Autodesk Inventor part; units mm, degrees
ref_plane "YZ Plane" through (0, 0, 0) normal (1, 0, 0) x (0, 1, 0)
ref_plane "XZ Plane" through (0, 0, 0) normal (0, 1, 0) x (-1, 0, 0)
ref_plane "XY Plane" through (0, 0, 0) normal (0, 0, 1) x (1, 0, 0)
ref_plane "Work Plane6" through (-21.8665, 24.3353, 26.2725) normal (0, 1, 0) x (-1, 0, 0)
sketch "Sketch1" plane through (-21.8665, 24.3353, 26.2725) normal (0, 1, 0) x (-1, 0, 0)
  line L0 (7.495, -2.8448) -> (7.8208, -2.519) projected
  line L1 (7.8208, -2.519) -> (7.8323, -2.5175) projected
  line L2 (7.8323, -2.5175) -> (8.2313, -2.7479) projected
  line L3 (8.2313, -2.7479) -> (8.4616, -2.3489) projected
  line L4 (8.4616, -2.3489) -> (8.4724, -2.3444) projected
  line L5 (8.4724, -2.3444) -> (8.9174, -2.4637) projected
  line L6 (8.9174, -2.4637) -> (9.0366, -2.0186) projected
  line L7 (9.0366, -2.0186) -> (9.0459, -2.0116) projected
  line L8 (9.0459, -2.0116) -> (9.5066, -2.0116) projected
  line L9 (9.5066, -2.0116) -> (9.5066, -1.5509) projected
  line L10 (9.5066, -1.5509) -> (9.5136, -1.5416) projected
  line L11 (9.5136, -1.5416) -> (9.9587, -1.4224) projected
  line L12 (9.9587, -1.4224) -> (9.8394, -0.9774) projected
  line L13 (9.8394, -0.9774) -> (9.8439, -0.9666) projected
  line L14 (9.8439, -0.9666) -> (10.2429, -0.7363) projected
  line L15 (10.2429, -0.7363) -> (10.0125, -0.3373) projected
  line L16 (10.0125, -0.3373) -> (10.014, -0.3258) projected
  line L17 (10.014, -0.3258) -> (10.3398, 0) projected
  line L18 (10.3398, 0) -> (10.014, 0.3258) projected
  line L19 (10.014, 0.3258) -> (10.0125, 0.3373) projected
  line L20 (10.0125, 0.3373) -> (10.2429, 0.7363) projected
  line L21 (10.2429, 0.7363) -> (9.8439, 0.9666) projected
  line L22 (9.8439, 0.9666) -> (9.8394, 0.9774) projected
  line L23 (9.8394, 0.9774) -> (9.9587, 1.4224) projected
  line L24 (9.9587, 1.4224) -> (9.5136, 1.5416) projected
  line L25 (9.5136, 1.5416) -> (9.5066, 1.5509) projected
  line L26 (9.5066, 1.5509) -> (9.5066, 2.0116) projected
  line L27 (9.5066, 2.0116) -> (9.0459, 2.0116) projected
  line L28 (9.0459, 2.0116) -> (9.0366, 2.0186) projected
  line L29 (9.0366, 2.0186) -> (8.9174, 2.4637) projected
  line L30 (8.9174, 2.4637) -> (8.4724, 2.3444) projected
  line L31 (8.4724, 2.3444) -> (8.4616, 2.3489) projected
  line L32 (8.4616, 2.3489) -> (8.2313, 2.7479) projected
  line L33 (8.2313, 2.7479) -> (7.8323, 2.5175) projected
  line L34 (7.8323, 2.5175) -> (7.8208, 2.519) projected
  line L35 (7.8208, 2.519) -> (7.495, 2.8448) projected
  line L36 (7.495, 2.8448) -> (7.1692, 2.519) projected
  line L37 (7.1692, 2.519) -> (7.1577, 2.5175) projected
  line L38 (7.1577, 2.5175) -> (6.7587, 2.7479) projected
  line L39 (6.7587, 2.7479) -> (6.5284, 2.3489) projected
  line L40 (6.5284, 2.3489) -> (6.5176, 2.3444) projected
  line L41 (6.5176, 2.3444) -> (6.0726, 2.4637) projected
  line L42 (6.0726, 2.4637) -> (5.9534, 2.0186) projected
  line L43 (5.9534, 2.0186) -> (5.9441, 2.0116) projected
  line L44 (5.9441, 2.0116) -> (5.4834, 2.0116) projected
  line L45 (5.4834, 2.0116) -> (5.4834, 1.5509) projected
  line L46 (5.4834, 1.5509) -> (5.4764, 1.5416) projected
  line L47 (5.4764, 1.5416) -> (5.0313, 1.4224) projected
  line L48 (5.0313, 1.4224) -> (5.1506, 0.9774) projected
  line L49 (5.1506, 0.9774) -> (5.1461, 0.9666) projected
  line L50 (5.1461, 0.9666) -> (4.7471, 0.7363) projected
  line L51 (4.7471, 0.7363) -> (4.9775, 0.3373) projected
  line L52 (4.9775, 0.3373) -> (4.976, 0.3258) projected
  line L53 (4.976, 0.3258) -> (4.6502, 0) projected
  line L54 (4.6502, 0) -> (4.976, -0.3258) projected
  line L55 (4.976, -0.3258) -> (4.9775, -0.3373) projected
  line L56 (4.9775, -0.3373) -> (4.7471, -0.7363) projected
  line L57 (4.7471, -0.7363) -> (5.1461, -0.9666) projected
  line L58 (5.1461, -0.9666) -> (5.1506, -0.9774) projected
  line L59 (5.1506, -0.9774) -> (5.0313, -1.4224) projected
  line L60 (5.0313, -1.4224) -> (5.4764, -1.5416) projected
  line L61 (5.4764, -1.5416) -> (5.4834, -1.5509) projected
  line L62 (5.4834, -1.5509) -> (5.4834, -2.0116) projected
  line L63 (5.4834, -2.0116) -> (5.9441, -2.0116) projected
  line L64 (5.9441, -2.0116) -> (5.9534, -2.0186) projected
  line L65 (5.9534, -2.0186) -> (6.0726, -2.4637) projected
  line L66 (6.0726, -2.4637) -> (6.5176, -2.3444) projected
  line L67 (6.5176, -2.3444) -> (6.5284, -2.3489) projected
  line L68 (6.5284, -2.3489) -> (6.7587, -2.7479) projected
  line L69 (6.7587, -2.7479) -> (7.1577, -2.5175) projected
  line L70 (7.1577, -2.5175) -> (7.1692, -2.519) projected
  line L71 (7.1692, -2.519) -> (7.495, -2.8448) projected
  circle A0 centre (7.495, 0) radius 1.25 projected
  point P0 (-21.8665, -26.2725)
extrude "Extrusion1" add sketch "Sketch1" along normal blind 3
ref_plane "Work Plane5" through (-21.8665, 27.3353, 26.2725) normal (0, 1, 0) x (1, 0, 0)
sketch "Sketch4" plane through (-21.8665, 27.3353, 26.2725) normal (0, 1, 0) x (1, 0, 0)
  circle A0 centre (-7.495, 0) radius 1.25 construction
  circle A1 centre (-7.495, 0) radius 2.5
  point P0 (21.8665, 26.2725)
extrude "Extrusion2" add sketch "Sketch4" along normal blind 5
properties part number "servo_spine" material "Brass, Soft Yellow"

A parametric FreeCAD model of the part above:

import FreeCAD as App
import Part
import Sketcher
Q = App.Units.Quantity


def add_polygon(sketch, points):
    """Adds a closed chain of lines whose ends are joined by coincident constraints."""
    first, n = sketch.GeometryCount, len(points)
    for a, b in zip(points, points[1:] + points[:1]):
        sketch.addGeometry(Part.LineSegment(App.Vector(*a, 0), App.Vector(*b, 0)), False)
    for i in range(n):
        sketch.addConstraint(Sketcher.Constraint("Coincident", first + i, 2, first + (i + 1) % n, 1))

doc = App.newDocument("Part")
body = doc.addObject("PartDesign::Body", "Body")

sketch1 = body.newObject("Sketcher::SketchObject", "Sketch")
sketch1.AttachmentSupport = (doc.getObject("XZ_Plane"), [""])
sketch1.MapMode = "FlatFace"
sketch1.AttachmentOffset = App.Placement(App.Vector(0, 0, -24.3353), App.Rotation())
add_polygon(sketch1, [(-29.036, 23.753), (-29.361, 23.428), (-29.687, 23.753), (-29.699, 23.755), (-30.098, 23.525), (-30.328, 23.924), (-30.339, 23.928), (-30.784, 23.809), (-30.903, 24.254), (-30.912, 24.261), (-31.373, 24.261), (-31.373, 24.722), (-31.38, 24.731), (-31.825, 24.85), (-31.706, 25.295), (-31.71, 25.306), (-32.109, 25.536), (-31.879, 25.935), (-31.881, 25.947), (-32.206, 26.273), (-31.881, 26.598), (-31.879, 26.61), (-32.109, 27.009), (-31.71, 27.239), (-31.706, 27.25), (-31.825, 27.695), (-31.38, 27.814), (-31.373, 27.823), (-31.373, 28.284), (-30.912, 28.284), (-30.903, 28.291), (-30.784, 28.736), (-30.339, 28.617), (-30.328, 28.621), (-30.098, 29.02), (-29.699, 28.79), (-29.687, 28.791), (-29.361, 29.117), (-29.036, 28.791), (-29.024, 28.79), (-28.625, 29.02), (-28.395, 28.621), (-28.384, 28.617), (-27.939, 28.736), (-27.82, 28.291), (-27.811, 28.284), (-27.35, 28.284), (-27.35, 27.823), (-27.343, 27.814), (-26.898, 27.695), (-27.017, 27.25), (-27.013, 27.239), (-26.614, 27.009), (-26.844, 26.61), (-26.843, 26.598), (-26.517, 26.273), (-26.843, 25.947), (-26.844, 25.935), (-26.614, 25.536), (-27.013, 25.306), (-27.017, 25.295), (-26.898, 24.85), (-27.343, 24.731), (-27.35, 24.722), (-27.35, 24.261), (-27.811, 24.261), (-27.82, 24.254), (-27.939, 23.809), (-28.384, 23.928), (-28.395, 23.924), (-28.625, 23.525), (-29.024, 23.755)])
sketch1.addGeometry(Part.Circle(App.Vector(-29.361, 26.273, 0), App.Vector(0, 0, 1), 1.25), False)
sketch1.addConstraint([
    Sketcher.Constraint("Horizontal", 9),
    Sketcher.Constraint("Vertical", 10),
    Sketcher.Constraint("Vertical", 27),
    Sketcher.Constraint("Horizontal", 28),
    Sketcher.Constraint("Horizontal", 45),
    Sketcher.Constraint("Vertical", 46),
    Sketcher.Constraint("Vertical", 63),
    Sketcher.Constraint("Horizontal", 64),
    Sketcher.Constraint("Perpendicular", 0, 1),
    Sketcher.Constraint("Perpendicular", 3, 4),
    Sketcher.Constraint("Perpendicular", 6, 7),
    Sketcher.Constraint("Perpendicular", 12, 13),
    Sketcher.Constraint("Perpendicular", 15, 16),
    Sketcher.Constraint("Parallel", 1, 18),
    Sketcher.Constraint("Perpendicular", 18, 19),
    Sketcher.Constraint("Perpendicular", 2, 20),
    Sketcher.Constraint("Parallel", 4, 21),
    Sketcher.Constraint("Perpendicular", 21, 22),
    Sketcher.Constraint("Perpendicular", 5, 23),
    Sketcher.Constraint("Parallel", 7, 24),
    Sketcher.Constraint("Perpendicular", 24, 25),
    Sketcher.Constraint("Perpendicular", 8, 26),
    Sketcher.Constraint("Perpendicular", 11, 29),
    Sketcher.Constraint("Parallel", 13, 30),
    Sketcher.Constraint("Perpendicular", 30, 31),
    Sketcher.Constraint("Perpendicular", 14, 32),
    Sketcher.Constraint("Parallel", 16, 33),
    Sketcher.Constraint("Perpendicular", 33, 34),
    Sketcher.Constraint("Perpendicular", 17, 35),
    Sketcher.Constraint("Parallel", 19, 36),
    Sketcher.Constraint("Perpendicular", 36, 37),
    Sketcher.Constraint("Perpendicular", 20, 38),
    Sketcher.Constraint("Parallel", 22, 39),
    Sketcher.Constraint("Perpendicular", 39, 40),
    Sketcher.Constraint("Perpendicular", 23, 41),
    Sketcher.Constraint("Parallel", 25, 42),
    Sketcher.Constraint("Perpendicular", 42, 43),
    Sketcher.Constraint("Perpendicular", 26, 44),
    Sketcher.Constraint("Perpendicular", 29, 47),
    Sketcher.Constraint("Parallel", 31, 48),
    Sketcher.Constraint("Perpendicular", 48, 49),
    Sketcher.Constraint("Perpendicular", 32, 50),
    Sketcher.Constraint("Parallel", 34, 51),
    Sketcher.Constraint("Perpendicular", 51, 52),
    Sketcher.Constraint("Perpendicular", 35, 53),
    Sketcher.Constraint("Parallel", 37, 54),
    Sketcher.Constraint("Perpendicular", 54, 55),
    Sketcher.Constraint("Perpendicular", 38, 56),
    Sketcher.Constraint("Parallel", 40, 57),
    Sketcher.Constraint("Perpendicular", 57, 58),
    Sketcher.Constraint("Perpendicular", 41, 59),
    Sketcher.Constraint("Parallel", 43, 60),
    Sketcher.Constraint("Perpendicular", 60, 61),
    Sketcher.Constraint("Perpendicular", 44, 62),
    Sketcher.Constraint("Perpendicular", 47, 65),
    Sketcher.Constraint("Parallel", 49, 66),
    Sketcher.Constraint("Perpendicular", 66, 67),
    Sketcher.Constraint("Perpendicular", 50, 68),
    Sketcher.Constraint("Parallel", 52, 69),
    Sketcher.Constraint("Perpendicular", 69, 70),
    Sketcher.Constraint("Perpendicular", 53, 71),
    Sketcher.Constraint("Horizontal", 72, 3, 18, 2),
    Sketcher.Constraint("Horizontal", 35, 2, 37, 2),
    Sketcher.Constraint("Horizontal", 34, 2, 38, 2),
    Sketcher.Constraint("Horizontal", 33, 2, 39, 2),
    Sketcher.Constraint("Horizontal", 32, 2, 40, 2),
    Sketcher.Constraint("Horizontal", 31, 2, 41, 2),
    Sketcher.Constraint("Horizontal", 30, 2, 42, 2),
    Sketcher.Constraint("Horizontal", 29, 2, 43, 2),
    Sketcher.Constraint("Horizontal", 28, 2, 44, 2),
    Sketcher.Constraint("Horizontal", 26, 2, 46, 2),
    Sketcher.Constraint("Horizontal", 25, 2, 47, 2),
    Sketcher.Constraint("Horizontal", 24, 2, 48, 2),
    Sketcher.Constraint("Horizontal", 23, 2, 49, 2),
    Sketcher.Constraint("Horizontal", 22, 2, 50, 2),
    Sketcher.Constraint("Horizontal", 21, 2, 51, 2),
    Sketcher.Constraint("Horizontal", 20, 2, 52, 2),
    Sketcher.Constraint("Horizontal", 19, 2, 53, 2),
    Sketcher.Constraint("Horizontal", 18, 2, 54, 2),
    Sketcher.Constraint("Horizontal", 17, 2, 55, 2),
    Sketcher.Constraint("Horizontal", 16, 2, 56, 2),
    Sketcher.Constraint("Horizontal", 15, 2, 57, 2),
    Sketcher.Constraint("Horizontal", 14, 2, 58, 2),
    Sketcher.Constraint("Horizontal", 13, 2, 59, 2),
    Sketcher.Constraint("Horizontal", 12, 2, 60, 2),
    Sketcher.Constraint("Horizontal", 11, 2, 61, 2),
    Sketcher.Constraint("Horizontal", 10, 2, 62, 2),
    Sketcher.Constraint("Horizontal", 9, 2, 63, 2),
    Sketcher.Constraint("Horizontal", 7, 2, 65, 2),
    Sketcher.Constraint("Horizontal", 6, 2, 66, 2),
    Sketcher.Constraint("Horizontal", 5, 2, 67, 2),
    Sketcher.Constraint("Horizontal", 4, 2, 68, 2),
    Sketcher.Constraint("Horizontal", 3, 2, 69, 2),
    Sketcher.Constraint("Horizontal", 2, 2, 70, 2),
    Sketcher.Constraint("Horizontal", 1, 2, 71, 2),
    Sketcher.Constraint("Vertical", 72, 3, 0, 2),
    Sketcher.Constraint("Vertical", 17, 2, 19, 2),
    Sketcher.Constraint("Vertical", 16, 2, 20, 2),
    Sketcher.Constraint("Vertical", 15, 2, 21, 2),
    Sketcher.Constraint("Vertical", 14, 2, 22, 2),
    Sketcher.Constraint("Vertical", 13, 2, 23, 2),
    Sketcher.Constraint("Vertical", 12, 2, 24, 2),
    Sketcher.Constraint("Vertical", 11, 2, 25, 2),
    Sketcher.Constraint("Vertical", 10, 2, 26, 2),
    Sketcher.Constraint("Vertical", 8, 2, 28, 2),
    Sketcher.Constraint("Vertical", 7, 2, 29, 2),
    Sketcher.Constraint("Vertical", 6, 2, 30, 2),
    Sketcher.Constraint("Vertical", 5, 2, 31, 2),
    Sketcher.Constraint("Vertical", 4, 2, 32, 2),
    Sketcher.Constraint("Vertical", 3, 2, 33, 2),
    Sketcher.Constraint("Vertical", 2, 2, 34, 2),
    Sketcher.Constraint("Vertical", 1, 2, 35, 2),
    Sketcher.Constraint("Vertical", 0, 2, 36, 2),
    Sketcher.Constraint("Vertical", 53, 2, 55, 2),
    Sketcher.Constraint("Vertical", 52, 2, 56, 2),
    Sketcher.Constraint("Vertical", 51, 2, 57, 2),
    Sketcher.Constraint("Vertical", 49, 2, 59, 2),
    Sketcher.Constraint("Vertical", 48, 2, 60, 2),
    Sketcher.Constraint("Vertical", 46, 2, 62, 2),
    Sketcher.Constraint("Equal", 28, 45),
    Sketcher.Constraint("Equal", 64, 10),
    Sketcher.Constraint("Equal", 10, 27),
    Sketcher.Constraint("Equal", 1, 3),
    Sketcher.Constraint("Equal", 3, 4),
    Sketcher.Constraint("Equal", 2, 5),
    Sketcher.Constraint("Equal", 4, 6),
    Sketcher.Constraint("Equal", 6, 7),
    Sketcher.Constraint("Equal", 5, 8),
    Sketcher.Constraint("Equal", 8, 11),
    Sketcher.Constraint("Equal", 7, 12),
    Sketcher.Constraint("Equal", 12, 13),
    Sketcher.Constraint("Equal", 11, 14),
    Sketcher.Constraint("Equal", 13, 15),
    Sketcher.Constraint("Equal", 15, 16),
    Sketcher.Constraint("Equal", 14, 17),
    Sketcher.Constraint("Equal", 16, 18),
    Sketcher.Constraint("Diameter", 72, Q("2.5 mm")),
    Sketcher.Constraint("Angle", 5, Q("157.3801 deg")),
    Sketcher.Constraint("DistanceX", 11, 2, -1, 1, Q("31.38 mm")),
    Sketcher.Constraint("DistanceY", -1, 1, 12, 2, Q("24.85 mm")),
    Sketcher.Constraint("DistanceY", -1, 1, 23, 2, Q("27.25 mm")),
    Sketcher.Constraint("DistanceY", -1, 1, 34, 2, Q("28.79 mm")),
    Sketcher.Constraint("DistanceX", 43, 2, -1, 1, Q("27.82 mm")),
    Sketcher.Constraint("DistanceX", 45, 2, -1, 1, Q("27.35 mm")),
    Sketcher.Constraint("DistanceX", 9, 2, 9, 1, Q("0.4607 mm")),
    Sketcher.Constraint("DistanceY", -1, 1, 2, 2, Q("23.755 mm")),
    Sketcher.Constraint("DistanceX", 4, 2, -1, 1, Q("30.328 mm")),
])
pad1 = body.newObject("PartDesign::Pad", "Pad")
pad1.Profile = sketch1
pad1.Length = 3
pad1.Reversed = True

sketch2 = body.newObject("Sketcher::SketchObject", "Sketch001")
sketch2.AttachmentSupport = (doc.getObject("XZ_Plane"), [""])
sketch2.MapMode = "FlatFace"
sketch2.AttachmentOffset = App.Placement(App.Vector(0, 0, -27.3353), App.Rotation())
sketch2.addGeometry(Part.Circle(App.Vector(-29.4, 26.3, 0), App.Vector(0, 0, 1), 2.5), False)
sketch2.addConstraint([
    Sketcher.Constraint("Diameter", 0, Q("5 mm")),
    Sketcher.Constraint("DistanceX", 0, 3, -1, 1, Q("29.3615 mm")),
    Sketcher.Constraint("DistanceY", -1, 1, 0, 3, Q("26.2725 mm")),
])
pad2 = body.newObject("PartDesign::Pad", "Pad001")
pad2.Profile = sketch2
pad2.Length = 5
pad2.Reversed = True

doc.recompute()
